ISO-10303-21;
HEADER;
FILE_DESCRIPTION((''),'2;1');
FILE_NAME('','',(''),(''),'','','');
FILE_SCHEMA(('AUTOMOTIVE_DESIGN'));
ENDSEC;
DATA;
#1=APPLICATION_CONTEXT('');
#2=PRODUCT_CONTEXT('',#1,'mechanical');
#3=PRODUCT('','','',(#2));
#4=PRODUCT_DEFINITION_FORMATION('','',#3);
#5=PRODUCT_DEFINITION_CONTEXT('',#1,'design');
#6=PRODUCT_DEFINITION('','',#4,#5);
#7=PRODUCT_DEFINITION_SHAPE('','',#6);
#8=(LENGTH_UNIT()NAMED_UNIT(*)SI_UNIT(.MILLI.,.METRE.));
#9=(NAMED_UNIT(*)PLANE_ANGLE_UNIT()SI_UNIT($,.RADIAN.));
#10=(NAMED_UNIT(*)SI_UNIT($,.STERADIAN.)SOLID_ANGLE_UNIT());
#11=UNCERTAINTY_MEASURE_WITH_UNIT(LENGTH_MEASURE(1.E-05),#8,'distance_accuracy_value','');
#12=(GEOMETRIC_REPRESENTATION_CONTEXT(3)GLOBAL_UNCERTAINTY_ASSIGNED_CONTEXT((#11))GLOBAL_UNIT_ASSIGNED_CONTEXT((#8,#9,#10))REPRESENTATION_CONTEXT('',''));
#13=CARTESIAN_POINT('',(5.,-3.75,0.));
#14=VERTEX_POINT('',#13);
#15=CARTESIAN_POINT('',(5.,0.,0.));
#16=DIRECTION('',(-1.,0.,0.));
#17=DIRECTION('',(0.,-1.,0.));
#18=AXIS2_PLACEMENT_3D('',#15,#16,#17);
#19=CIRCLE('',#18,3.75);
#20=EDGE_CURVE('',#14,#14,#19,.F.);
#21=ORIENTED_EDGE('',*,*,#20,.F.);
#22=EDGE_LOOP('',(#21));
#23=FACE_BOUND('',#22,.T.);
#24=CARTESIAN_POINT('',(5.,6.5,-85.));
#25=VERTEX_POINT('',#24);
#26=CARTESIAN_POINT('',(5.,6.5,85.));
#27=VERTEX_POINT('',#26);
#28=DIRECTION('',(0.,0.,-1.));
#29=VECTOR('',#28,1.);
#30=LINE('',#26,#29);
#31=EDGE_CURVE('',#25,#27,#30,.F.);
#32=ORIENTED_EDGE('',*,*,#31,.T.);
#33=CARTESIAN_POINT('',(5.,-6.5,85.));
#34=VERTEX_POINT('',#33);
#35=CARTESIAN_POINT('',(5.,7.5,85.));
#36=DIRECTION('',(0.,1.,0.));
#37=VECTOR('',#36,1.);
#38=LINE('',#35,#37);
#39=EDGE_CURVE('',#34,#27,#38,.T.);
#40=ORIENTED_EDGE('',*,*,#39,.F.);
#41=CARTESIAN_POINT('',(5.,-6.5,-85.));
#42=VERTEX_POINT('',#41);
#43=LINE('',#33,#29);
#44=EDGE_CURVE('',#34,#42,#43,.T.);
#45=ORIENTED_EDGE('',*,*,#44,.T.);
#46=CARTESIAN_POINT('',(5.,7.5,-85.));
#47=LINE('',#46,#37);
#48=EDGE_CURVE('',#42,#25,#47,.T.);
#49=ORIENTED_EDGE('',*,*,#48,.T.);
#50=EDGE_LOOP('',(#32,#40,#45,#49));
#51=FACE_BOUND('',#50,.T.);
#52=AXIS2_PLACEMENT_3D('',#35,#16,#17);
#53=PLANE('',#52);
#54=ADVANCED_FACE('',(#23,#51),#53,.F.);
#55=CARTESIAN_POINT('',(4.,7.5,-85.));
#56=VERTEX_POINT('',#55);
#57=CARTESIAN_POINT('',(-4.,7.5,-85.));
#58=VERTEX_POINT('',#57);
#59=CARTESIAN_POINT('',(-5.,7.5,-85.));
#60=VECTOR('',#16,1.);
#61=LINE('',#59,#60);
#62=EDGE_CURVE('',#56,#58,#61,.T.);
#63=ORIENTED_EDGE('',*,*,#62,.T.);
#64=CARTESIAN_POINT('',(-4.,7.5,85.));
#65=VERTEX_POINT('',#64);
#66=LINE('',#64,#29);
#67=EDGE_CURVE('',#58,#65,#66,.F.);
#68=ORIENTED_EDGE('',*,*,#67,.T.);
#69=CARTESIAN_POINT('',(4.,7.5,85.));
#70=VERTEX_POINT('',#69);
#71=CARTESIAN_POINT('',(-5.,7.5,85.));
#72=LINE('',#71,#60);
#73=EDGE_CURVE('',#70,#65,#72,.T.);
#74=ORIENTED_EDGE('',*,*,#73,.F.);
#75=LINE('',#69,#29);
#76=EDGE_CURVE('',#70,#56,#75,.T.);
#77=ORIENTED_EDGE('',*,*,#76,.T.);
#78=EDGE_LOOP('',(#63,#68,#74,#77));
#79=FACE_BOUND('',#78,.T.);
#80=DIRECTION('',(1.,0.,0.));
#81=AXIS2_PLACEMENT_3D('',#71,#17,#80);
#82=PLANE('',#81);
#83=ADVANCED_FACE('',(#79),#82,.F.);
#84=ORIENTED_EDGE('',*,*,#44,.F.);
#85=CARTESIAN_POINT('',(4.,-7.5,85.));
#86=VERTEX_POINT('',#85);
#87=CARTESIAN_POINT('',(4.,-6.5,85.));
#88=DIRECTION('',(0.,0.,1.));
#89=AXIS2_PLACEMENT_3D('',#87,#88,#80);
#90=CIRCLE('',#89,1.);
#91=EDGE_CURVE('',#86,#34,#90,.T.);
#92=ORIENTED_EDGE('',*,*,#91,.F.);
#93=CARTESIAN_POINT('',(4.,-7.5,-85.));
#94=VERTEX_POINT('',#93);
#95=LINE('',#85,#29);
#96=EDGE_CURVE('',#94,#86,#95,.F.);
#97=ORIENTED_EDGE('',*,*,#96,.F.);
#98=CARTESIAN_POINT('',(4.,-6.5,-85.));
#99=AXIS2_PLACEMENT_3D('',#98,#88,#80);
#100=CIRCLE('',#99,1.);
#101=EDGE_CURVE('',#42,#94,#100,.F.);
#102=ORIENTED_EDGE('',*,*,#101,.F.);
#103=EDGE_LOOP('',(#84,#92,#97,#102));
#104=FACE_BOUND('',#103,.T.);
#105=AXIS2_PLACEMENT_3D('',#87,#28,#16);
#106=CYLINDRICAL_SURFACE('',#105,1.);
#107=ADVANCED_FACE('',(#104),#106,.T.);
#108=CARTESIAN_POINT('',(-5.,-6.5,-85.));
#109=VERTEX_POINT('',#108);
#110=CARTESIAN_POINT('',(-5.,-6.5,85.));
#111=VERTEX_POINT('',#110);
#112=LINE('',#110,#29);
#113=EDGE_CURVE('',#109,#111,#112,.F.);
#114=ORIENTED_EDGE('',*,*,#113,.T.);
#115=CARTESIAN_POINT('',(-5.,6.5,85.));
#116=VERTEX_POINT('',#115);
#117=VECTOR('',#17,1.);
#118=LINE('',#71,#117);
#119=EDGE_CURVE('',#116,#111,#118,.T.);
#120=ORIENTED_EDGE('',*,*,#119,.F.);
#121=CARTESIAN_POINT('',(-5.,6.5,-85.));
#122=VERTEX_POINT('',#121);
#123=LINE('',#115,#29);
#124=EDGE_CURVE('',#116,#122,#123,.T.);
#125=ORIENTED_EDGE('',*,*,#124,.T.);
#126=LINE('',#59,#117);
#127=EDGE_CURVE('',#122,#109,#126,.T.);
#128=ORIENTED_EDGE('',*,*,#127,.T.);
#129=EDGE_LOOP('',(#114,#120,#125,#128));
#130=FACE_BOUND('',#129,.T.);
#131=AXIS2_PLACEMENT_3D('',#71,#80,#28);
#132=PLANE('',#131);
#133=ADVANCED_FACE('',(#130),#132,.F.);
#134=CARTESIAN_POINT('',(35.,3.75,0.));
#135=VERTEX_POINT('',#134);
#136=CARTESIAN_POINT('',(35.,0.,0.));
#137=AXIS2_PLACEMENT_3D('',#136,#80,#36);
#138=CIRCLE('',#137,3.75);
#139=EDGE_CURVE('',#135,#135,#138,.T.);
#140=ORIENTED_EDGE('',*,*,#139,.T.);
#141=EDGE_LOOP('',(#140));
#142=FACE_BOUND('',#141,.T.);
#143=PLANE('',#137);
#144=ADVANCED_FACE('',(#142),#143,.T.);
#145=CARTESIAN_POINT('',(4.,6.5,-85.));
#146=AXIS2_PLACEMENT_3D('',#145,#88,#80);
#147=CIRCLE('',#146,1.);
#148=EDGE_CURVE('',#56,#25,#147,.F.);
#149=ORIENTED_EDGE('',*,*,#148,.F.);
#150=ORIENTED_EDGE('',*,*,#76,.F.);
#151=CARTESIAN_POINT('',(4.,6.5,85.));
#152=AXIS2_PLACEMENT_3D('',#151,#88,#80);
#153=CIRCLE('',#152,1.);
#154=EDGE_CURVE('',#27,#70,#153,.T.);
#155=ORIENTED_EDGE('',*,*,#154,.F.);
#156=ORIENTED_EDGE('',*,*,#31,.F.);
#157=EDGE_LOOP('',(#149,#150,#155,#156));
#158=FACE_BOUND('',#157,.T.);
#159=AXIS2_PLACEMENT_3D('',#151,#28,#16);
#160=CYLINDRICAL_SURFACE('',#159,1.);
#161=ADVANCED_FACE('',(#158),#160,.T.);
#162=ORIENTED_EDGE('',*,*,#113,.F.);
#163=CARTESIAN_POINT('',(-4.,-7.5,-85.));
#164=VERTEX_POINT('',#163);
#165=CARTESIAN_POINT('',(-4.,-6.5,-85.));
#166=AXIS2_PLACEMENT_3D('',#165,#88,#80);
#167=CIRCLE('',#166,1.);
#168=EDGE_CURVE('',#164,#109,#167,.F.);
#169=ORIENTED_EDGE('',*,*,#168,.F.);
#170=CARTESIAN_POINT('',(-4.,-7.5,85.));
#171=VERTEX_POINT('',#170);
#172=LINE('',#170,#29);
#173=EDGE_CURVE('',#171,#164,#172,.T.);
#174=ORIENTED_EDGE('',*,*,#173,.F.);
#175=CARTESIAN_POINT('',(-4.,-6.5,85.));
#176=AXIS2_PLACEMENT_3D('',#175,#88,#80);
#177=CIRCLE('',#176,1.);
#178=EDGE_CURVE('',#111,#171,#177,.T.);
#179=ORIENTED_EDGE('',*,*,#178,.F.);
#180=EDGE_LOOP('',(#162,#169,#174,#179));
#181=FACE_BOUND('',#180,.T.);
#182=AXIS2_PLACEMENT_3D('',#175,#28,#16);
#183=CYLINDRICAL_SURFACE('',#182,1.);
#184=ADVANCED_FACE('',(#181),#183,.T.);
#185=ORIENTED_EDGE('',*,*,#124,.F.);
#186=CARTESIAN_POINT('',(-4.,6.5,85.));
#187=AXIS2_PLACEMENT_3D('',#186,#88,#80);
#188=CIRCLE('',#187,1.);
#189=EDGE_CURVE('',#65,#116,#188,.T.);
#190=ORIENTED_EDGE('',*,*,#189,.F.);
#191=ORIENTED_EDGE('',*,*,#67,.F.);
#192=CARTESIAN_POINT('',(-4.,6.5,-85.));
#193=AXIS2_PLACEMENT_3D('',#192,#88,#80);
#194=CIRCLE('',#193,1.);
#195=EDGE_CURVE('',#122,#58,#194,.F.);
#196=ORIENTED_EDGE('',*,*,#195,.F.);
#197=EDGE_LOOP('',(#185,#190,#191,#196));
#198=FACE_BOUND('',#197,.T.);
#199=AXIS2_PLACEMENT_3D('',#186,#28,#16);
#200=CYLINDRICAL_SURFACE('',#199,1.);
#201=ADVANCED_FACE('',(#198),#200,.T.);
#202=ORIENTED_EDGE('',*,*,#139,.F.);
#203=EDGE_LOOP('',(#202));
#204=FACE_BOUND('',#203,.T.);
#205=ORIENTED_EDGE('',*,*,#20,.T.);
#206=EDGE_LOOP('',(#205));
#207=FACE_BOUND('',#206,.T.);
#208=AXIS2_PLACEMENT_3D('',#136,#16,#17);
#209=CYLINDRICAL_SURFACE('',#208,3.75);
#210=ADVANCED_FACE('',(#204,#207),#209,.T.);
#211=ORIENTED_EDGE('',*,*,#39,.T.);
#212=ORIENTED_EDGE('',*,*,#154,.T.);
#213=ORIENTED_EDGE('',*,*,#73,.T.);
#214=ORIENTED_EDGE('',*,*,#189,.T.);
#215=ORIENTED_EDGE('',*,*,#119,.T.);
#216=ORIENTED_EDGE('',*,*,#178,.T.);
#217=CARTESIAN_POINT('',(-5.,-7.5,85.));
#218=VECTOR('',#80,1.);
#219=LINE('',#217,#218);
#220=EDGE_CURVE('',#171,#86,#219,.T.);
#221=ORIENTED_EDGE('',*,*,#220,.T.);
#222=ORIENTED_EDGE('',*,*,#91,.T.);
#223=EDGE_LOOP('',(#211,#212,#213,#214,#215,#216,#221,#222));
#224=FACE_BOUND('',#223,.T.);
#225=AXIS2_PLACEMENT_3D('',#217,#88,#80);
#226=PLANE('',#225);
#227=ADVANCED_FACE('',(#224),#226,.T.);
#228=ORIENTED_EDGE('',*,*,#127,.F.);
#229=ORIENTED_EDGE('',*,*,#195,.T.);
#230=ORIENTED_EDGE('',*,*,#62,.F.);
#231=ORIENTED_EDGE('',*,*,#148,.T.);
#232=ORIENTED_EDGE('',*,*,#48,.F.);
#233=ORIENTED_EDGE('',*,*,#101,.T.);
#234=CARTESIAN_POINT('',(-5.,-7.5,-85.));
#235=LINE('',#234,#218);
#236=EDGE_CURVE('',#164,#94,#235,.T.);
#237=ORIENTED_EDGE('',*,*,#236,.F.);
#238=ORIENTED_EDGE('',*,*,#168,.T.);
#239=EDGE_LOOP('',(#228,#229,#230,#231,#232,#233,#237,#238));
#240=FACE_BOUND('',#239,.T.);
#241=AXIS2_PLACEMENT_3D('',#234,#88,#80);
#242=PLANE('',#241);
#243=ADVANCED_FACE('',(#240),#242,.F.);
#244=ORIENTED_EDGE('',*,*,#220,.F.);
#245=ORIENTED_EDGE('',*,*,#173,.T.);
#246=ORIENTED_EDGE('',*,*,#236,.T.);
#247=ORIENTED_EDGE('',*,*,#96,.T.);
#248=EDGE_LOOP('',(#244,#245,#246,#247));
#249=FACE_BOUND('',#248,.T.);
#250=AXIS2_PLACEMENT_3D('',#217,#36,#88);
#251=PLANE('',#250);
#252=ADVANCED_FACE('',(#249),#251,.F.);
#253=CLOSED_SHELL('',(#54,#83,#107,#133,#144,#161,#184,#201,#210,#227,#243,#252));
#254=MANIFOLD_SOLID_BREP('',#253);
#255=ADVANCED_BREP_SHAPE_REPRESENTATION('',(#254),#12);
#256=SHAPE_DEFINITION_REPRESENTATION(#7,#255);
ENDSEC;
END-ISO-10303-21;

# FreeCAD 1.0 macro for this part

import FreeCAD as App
import Part
import Sketcher

V = App.Vector
Q = App.Units.Quantity


def edges_at(feature, points):
    """Names of the edges that pass closest to the given points."""
    edges = feature.Shape.Edges
    near = lambda p: min(range(len(edges)), key=lambda i: edges[i].distToShape(Part.Vertex(*p))[0])
    return sorted({f"Edge{near(p) + 1}" for p in points})


def add_polygon(sketch, points):
    """Adds a closed chain of lines whose ends are joined by coincident constraints."""
    first, n = sketch.GeometryCount, len(points)
    for a, b in zip(points, points[1:] + points[:1]):
        sketch.addGeometry(Part.LineSegment(App.Vector(*a, 0), App.Vector(*b, 0)), False)
    for i in range(n):
        sketch.addConstraint(Sketcher.Constraint("Coincident", first + i, 2, first + (i + 1) % n, 1))

doc = App.newDocument("Part")
body = doc.addObject("PartDesign::Body", "Body")

sketch1 = body.newObject("Sketcher::SketchObject", "Sketch")
sketch1.AttachmentSupport = (doc.getObject("XY_Plane"), [""])
sketch1.MapMode = "FlatFace"
add_polygon(sketch1, [(-5, 8), (-5, -8), (5, -8), (5, 8)])
sketch1.addConstraint(Sketcher.Constraint("Vertical", 0))
sketch1.addConstraint(Sketcher.Constraint("Horizontal", 1))
sketch1.addConstraint(Sketcher.Constraint("Vertical", 2))
sketch1.addConstraint(Sketcher.Constraint("Horizontal", 3))
sketch1.addConstraint(Sketcher.Constraint("Symmetric", 0, 2, 2, 2, -1, 1))
sketch1.addConstraint(Sketcher.Constraint("DistanceX", 1, 1, 1, 2, Q("10 mm")))
sketch1.addConstraint(Sketcher.Constraint("DistanceY", 0, 2, 0, 1, Q("15 mm")))
pad1 = body.newObject("PartDesign::Pad", "Pad")
pad1.Profile = sketch1
pad1.Length = 170
pad1.Midplane = True

sketch2 = body.newObject("Sketcher::SketchObject", "Sketch001")
sketch2.AttachmentSupport = (doc.getObject("YZ_Plane"), [""])
sketch2.MapMode = "FlatFace"
sketch2.AttachmentOffset = App.Placement(V(0, 0, 5), App.Rotation())
sketch2.addGeometry(Part.Circle(V(0, 0, 0), V(0, 0, 1), 3.8), False)
sketch2.addConstraint(Sketcher.Constraint("Coincident", 0, 3, -1, 1))
sketch2.addConstraint(Sketcher.Constraint("Diameter", 0, Q("7.5 mm")))
pad2 = body.newObject("PartDesign::Pad", "Pad001")
pad2.Profile = sketch2
pad2.Length = 30
doc.recompute()

fillet = body.newObject("PartDesign::Fillet", "Fillet")
fillet.Base = (pad2, edges_at(pad2, [
    (-5, 7.5, 0),
    (5, 7.5, 0),
    (5, -7.5, 0),
    (-5, -7.5, 0),
]))
fillet.Radius = 1

doc.recompute()
